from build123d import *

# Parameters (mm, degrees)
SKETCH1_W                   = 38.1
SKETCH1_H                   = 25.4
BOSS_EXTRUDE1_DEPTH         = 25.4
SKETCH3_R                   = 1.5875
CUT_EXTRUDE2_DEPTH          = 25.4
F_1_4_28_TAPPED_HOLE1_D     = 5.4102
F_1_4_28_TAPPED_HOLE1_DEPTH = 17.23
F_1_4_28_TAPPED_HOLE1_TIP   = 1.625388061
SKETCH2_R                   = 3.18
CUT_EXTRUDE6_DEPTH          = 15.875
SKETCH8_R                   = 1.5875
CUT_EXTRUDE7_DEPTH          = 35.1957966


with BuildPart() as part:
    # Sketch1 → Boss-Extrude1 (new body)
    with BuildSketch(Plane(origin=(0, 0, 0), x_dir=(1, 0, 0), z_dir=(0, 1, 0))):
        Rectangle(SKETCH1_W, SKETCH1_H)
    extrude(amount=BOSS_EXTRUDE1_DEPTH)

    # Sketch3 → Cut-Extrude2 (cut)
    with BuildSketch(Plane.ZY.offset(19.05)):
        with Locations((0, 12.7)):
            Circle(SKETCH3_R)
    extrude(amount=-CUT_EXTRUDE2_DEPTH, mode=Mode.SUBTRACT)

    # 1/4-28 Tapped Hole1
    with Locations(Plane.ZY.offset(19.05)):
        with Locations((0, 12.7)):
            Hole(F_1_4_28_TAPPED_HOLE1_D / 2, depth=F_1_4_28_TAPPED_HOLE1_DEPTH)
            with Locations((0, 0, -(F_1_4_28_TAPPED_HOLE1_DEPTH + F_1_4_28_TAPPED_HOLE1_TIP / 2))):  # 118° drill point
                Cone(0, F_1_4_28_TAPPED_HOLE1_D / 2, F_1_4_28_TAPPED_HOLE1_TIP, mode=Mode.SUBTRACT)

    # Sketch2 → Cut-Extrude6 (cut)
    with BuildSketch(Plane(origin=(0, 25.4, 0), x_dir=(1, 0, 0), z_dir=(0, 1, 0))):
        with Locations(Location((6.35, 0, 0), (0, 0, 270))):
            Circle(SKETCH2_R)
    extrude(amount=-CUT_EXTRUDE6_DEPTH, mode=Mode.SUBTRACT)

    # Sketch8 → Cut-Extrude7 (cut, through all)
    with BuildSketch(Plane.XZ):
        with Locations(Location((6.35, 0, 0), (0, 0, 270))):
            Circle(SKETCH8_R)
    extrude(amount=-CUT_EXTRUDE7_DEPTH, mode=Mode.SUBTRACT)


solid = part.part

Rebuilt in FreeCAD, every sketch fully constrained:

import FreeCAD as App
import Part
import Sketcher

V = App.Vector
Q = App.Units.Quantity

doc = App.newDocument("Part")
params = doc.addObject("Spreadsheet::Sheet", "Params")
for row, (alias, value) in enumerate([
    ("sketch1_height", "1 in"),
    ("sketch1_width", "1.5 in"),
    ("pad1_length", "1 in"),
    ("sketch2_diameter", "0.125 in"),
    ("pocket1_length", "1 in"),
    ("sketch3_diameter", "0.213 in"),
    ("hole_diameter", "0.213 in"),
    ("hole_depth", "17.23 mm"),
    ("pocket2_length", "0.625 in"),
    ("sketch5_diameter", "0.125 in"),
], start=1):
    params.set(f"A{row}", alias)
    params.set(f"B{row}", "=" + value)
    params.setAlias(f"B{row}", alias)

body = doc.addObject("PartDesign::Body", "Body")

sketch1 = body.newObject("Sketcher::SketchObject", "Sketch")
sketch1.AttachmentSupport = (doc.getObject("XZ_Plane"), [""])
sketch1.MapMode = "FlatFace"
sketch1.addGeometry([
    Part.LineSegment(V(-19, -13, 0), V(-19, 13, 0)),
    Part.LineSegment(V(-19, 13, 0), V(19, 13, 0)),
    Part.LineSegment(V(19, 13, 0), V(19, -13, 0)),
    Part.LineSegment(V(19, -13, 0), V(-19, -13, 0)),
], False)
sketch1.addConstraint([
    Sketcher.Constraint("Coincident", 0, 2, 1, 1),
    Sketcher.Constraint("Coincident", 1, 2, 2, 1),
    Sketcher.Constraint("Coincident", 2, 2, 3, 1),
    Sketcher.Constraint("Coincident", 3, 2, 0, 1),
    Sketcher.Constraint("Vertical", 0),
    Sketcher.Constraint("Horizontal", 1),
    Sketcher.Constraint("Vertical", 2),
    Sketcher.Constraint("Horizontal", 3),
    Sketcher.Constraint("Symmetric", 0, 2, 2, 2, -1, 1),
    Sketcher.Constraint("DistanceY", 0, 1, 0, 2, Q("1 in")),
    Sketcher.Constraint("DistanceX", 1, 1, 1, 2, Q("1.5 in")),
])
sketch1.setExpression("Constraints[9]", "Params.sketch1_height")
sketch1.setExpression("Constraints[10]", "Params.sketch1_width")
pad1 = body.newObject("PartDesign::Pad", "Pad")
pad1.Profile = sketch1
pad1.setExpression("Length", "Params.pad1_length")
pad1.Reversed = True

sketch2 = body.newObject("Sketcher::SketchObject", "Sketch001")
sketch2.AttachmentSupport = (doc.getObject("YZ_Plane"), [""])
sketch2.MapMode = "FlatFace"
sketch2.AttachmentOffset = App.Placement(V(0, 0, -0.75 * 25.4), App.Rotation())
sketch2.addGeometry(Part.Circle(V(12.7, 0, 0), V(0, 0, 1), 1.6), False)
sketch2.addConstraint([
    Sketcher.Constraint("PointOnObject", 0, 3, -1),
    Sketcher.Constraint("Diameter", 0, Q("0.125 in")),
    Sketcher.Constraint("DistanceX", -1, 1, 0, 3, Q("0.5 in")),
])
sketch2.setExpression("Constraints[1]", "Params.sketch2_diameter")
pocket1 = body.newObject("PartDesign::Pocket", "Pocket")
pocket1.Profile = sketch2
pocket1.setExpression("Length", "Params.pocket1_length")
pocket1.Reversed = True

sketch3 = body.newObject("Sketcher::SketchObject", "Sketch002")
sketch3.AttachmentSupport = (doc.getObject("YZ_Plane"), [""])
sketch3.MapMode = "FlatFace"
sketch3.AttachmentOffset = App.Placement(V(0, 0, -0.75 * 25.4), App.Rotation())
sketch3.addGeometry(Part.Circle(V(12.7, 0, 0), V(0, 0, 1), 2.7), False)
sketch3.addConstraint([
    Sketcher.Constraint("PointOnObject", 0, 3, -1),
    Sketcher.Constraint("Diameter", 0, Q("0.213 in")),
    Sketcher.Constraint("DistanceX", -1, 1, 0, 3, Q("0.5 in")),
])
sketch3.setExpression("Constraints[1]", "Params.sketch3_diameter")
doc.recompute()
hole = body.newObject("PartDesign::Hole", "Hole")
hole.Profile = sketch3
hole.ThreadType = "None"
hole.setExpression("Diameter", "Params.hole_diameter")
hole.DepthType = "Dimension"
hole.setExpression("Depth", "Params.hole_depth")
hole.DrillPoint = "Angled"
hole.DrillPointAngle = 118
hole.Reversed = True

sketch4 = body.newObject("Sketcher::SketchObject", "Sketch003")
sketch4.AttachmentSupport = (doc.getObject("XZ_Plane"), [""])
sketch4.MapMode = "FlatFace"
sketch4.AttachmentOffset = App.Placement(V(0, 0, -1 * 25.4), App.Rotation())
sketch4.addGeometry(Part.Circle(V(6.3, 0, 0), V(0, 0, 1), 3.2), False)
sketch4.addConstraint([
    Sketcher.Constraint("PointOnObject", 0, 3, -1),
    Sketcher.Constraint("Diameter", 0, Q("6.36 mm")),
    Sketcher.Constraint("DistanceX", -1, 1, 0, 3, Q("0.25 in")),
])
pocket2 = body.newObject("PartDesign::Pocket", "Pocket001")
pocket2.Profile = sketch4
pocket2.setExpression("Length", "Params.pocket2_length")
pocket2.Reversed = True

sketch5 = body.newObject("Sketcher::SketchObject", "Sketch004")
sketch5.AttachmentSupport = (doc.getObject("XZ_Plane"), [""])
sketch5.MapMode = "FlatFace"
sketch5.addGeometry(Part.Circle(V(6.3, 0, 0), V(0, 0, 1), 1.6), False)
sketch5.addConstraint([
    Sketcher.Constraint("PointOnObject", 0, 3, -1),
    Sketcher.Constraint("Diameter", 0, Q("0.125 in")),
    Sketcher.Constraint("DistanceX", -1, 1, 0, 3, Q("0.25 in")),
])
sketch5.setExpression("Constraints[1]", "Params.sketch5_diameter")
pocket3 = body.newObject("PartDesign::Pocket", "Pocket002")
pocket3.Profile = sketch5
pocket3.Type = "ThroughAll"

doc.recompute()
